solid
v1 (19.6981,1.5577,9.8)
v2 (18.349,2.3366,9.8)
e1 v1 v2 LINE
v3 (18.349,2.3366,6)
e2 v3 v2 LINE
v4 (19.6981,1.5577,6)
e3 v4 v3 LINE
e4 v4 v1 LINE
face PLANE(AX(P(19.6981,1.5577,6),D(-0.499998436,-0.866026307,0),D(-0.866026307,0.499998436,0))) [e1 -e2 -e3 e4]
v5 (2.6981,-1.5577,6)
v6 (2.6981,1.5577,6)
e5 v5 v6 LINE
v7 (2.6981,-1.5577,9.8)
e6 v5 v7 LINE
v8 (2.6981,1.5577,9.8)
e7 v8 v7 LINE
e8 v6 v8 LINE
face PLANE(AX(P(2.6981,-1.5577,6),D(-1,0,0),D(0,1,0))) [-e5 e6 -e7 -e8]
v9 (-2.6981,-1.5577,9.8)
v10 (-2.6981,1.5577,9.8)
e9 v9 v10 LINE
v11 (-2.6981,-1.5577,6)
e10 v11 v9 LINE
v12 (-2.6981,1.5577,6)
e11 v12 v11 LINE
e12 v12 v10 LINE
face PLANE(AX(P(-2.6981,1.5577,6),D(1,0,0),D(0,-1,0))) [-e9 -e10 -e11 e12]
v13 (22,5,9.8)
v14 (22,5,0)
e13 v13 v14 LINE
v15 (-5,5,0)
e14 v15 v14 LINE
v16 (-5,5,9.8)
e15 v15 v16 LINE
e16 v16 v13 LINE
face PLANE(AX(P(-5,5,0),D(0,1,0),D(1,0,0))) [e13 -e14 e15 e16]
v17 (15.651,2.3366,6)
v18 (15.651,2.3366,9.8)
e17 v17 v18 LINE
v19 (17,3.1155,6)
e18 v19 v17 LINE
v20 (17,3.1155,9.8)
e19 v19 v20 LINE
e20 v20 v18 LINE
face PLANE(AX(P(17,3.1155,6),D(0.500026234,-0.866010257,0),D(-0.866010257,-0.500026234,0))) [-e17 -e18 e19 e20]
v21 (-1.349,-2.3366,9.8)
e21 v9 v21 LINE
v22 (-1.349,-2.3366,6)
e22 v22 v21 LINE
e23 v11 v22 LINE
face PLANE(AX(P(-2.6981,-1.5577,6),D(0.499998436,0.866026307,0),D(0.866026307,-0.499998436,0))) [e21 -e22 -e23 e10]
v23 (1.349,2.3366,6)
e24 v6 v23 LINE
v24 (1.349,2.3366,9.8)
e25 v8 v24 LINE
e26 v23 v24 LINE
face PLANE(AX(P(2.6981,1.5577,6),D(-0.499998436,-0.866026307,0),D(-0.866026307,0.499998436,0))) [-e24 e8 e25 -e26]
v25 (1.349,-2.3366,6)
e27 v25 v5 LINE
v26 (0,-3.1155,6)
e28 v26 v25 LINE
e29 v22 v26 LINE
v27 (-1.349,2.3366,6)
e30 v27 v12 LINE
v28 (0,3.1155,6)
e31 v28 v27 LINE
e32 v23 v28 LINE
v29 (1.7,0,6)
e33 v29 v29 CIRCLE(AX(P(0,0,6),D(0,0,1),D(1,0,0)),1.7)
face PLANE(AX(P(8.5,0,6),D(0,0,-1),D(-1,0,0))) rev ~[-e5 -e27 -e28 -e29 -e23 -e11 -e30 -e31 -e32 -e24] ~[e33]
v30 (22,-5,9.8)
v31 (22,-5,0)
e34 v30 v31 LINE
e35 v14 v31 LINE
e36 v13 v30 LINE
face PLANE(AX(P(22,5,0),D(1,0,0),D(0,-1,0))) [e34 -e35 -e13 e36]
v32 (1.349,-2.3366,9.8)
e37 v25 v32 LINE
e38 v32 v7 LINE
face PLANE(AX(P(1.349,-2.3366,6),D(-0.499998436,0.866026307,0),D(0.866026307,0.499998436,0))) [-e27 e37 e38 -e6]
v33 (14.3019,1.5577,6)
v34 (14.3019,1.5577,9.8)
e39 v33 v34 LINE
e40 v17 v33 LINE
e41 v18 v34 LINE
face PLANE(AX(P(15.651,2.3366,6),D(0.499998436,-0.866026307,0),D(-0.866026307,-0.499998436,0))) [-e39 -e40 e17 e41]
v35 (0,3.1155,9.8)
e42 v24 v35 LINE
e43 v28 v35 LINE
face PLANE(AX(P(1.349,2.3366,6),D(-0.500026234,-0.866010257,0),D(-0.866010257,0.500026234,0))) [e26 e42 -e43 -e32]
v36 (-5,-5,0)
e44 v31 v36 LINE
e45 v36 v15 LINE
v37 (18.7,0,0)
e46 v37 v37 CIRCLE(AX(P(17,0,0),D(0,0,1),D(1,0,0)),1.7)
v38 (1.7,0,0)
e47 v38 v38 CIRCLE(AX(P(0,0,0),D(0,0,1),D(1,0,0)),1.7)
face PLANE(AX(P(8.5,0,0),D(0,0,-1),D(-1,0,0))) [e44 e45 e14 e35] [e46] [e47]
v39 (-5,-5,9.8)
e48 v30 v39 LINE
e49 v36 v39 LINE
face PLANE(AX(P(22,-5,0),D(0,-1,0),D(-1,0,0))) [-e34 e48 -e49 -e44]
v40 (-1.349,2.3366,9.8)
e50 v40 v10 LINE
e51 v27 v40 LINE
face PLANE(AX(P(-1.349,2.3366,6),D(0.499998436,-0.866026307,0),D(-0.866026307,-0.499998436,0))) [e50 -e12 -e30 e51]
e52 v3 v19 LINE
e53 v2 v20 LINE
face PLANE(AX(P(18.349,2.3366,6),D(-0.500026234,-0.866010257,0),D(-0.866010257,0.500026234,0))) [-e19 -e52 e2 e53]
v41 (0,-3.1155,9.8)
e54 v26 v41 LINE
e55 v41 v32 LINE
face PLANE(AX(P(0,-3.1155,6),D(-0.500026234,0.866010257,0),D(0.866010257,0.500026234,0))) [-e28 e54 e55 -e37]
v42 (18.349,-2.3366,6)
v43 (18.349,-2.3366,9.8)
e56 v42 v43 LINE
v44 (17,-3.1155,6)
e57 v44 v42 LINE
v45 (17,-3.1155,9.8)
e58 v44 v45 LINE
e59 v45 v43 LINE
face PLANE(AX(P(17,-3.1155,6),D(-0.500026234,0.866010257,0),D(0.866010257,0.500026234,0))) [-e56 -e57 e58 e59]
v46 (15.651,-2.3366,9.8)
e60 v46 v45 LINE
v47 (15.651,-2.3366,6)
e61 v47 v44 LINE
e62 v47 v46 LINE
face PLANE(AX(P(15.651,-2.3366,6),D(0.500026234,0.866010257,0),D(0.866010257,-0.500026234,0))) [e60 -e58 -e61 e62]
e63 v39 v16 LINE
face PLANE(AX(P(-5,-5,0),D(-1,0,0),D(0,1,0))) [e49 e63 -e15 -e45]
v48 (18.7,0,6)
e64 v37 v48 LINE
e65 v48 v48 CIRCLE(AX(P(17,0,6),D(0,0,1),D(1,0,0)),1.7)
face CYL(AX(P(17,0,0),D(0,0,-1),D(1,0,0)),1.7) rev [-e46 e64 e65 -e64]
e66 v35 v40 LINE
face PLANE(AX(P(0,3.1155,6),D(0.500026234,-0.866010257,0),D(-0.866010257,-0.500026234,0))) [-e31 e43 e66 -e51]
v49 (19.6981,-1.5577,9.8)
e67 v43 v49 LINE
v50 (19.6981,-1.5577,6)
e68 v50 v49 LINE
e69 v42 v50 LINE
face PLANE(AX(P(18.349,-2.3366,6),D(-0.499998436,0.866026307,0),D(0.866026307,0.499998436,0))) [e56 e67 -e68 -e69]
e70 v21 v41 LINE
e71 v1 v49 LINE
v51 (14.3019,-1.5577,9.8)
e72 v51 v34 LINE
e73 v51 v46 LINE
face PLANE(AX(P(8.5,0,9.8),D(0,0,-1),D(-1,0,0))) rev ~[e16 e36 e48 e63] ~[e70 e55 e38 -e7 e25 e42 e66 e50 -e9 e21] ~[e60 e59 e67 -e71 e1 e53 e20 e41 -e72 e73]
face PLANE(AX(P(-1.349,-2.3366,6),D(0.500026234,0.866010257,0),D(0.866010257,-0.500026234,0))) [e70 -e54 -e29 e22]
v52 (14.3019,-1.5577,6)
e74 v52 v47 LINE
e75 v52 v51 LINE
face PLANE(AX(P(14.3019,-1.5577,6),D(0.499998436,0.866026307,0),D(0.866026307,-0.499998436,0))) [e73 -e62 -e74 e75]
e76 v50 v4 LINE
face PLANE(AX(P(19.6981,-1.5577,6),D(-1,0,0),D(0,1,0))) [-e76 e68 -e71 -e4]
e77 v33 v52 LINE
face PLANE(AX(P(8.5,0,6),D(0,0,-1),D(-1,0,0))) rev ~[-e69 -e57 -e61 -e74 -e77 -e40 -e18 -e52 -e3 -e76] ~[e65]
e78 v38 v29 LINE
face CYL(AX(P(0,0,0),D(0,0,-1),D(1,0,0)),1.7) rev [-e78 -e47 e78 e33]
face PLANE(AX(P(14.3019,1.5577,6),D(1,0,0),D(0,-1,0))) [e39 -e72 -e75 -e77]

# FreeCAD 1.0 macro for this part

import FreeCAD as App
import Part
import Sketcher

V = App.Vector
Q = App.Units.Quantity


def add_polygon(sketch, points):
    """Adds a closed chain of lines whose ends are joined by coincident constraints."""
    first, n = sketch.GeometryCount, len(points)
    for a, b in zip(points, points[1:] + points[:1]):
        sketch.addGeometry(Part.LineSegment(App.Vector(*a, 0), App.Vector(*b, 0)), False)
    for i in range(n):
        sketch.addConstraint(Sketcher.Constraint("Coincident", first + i, 2, first + (i + 1) % n, 1))

doc = App.newDocument("Part")
body = doc.addObject("PartDesign::Body", "Body")

# Sketch on XY plane
sketch1 = body.newObject("Sketcher::SketchObject", "Sketch")
sketch1.AttachmentSupport = (doc.getObject("XY_Plane"), [""])
sketch1.MapMode = "FlatFace"
add_polygon(sketch1, [(22, 5), (-5, 5), (-5, -5), (22, -5)])  # lines 0-3
sketch1.addGeometry(Part.Circle(V(0, 0, 0), V(0, 0, 1), 1.7), False)  # 4
sketch1.addGeometry(Part.Circle(V(17, 0, 0), V(0, 0, 1), 1.7), False)  # 5
sketch1.addConstraint([
    Sketcher.Constraint("Horizontal", 0),
    Sketcher.Constraint("Vertical", 1),
    Sketcher.Constraint("Horizontal", 2),
    Sketcher.Constraint("Vertical", 3),
    Sketcher.Constraint("Coincident", 4, 3, -1, 1),
    Sketcher.Constraint("Equal", 4, 5),
    Sketcher.Constraint("PointOnObject", 5, 3, -1),
    Sketcher.Constraint("Diameter", 4, Q("3.4 mm")),
    Sketcher.Constraint("DistanceX", 0, 2, 0, 1, Q("27 mm")),
    Sketcher.Constraint("DistanceY", 1, 2, 1, 1, Q("10 mm")),
    Sketcher.Constraint("DistanceX", -1, 1, 5, 3, Q("17 mm")),
    Sketcher.Constraint("DistanceX", 0, 2, -1, 1, Q("5 mm")),
    Sketcher.Constraint("DistanceY", -1, 1, 0, 2, Q("5 mm")),
])
pad1 = body.newObject("PartDesign::Pad", "Pad")
pad1.Profile = sketch1
pad1.Length = 6

# Sketch on XY plane
sketch2 = body.newObject("Sketcher::SketchObject", "Sketch001")
sketch2.AttachmentSupport = (doc.getObject("XY_Plane"), [""])
sketch2.MapMode = "FlatFace"
sketch2.AttachmentOffset = App.Placement(V(0, 0, 6), App.Rotation())
add_polygon(sketch2, [(-5, 5), (-5, -5), (22, -5), (22, 5)])  # lines 0-3
add_polygon(sketch2, [(1.3, 2.3), (2.7, 1.6), (2.7, -1.6), (1.3, -2.3), (0, -3.1), (-1.3, -2.3), (-2.7, -1.6), (-2.7, 1.6), (-1.3, 2.3), (0, 3.1)])  # lines 4-13
add_polygon(sketch2, [(18.3, 2.3), (19.7, 1.6), (19.7, -1.6), (18.3, -2.3), (17, -3.1), (15.7, -2.3), (14.3, -1.6), (14.3, 1.6), (15.7, 2.3), (17, 3.1)])  # lines 14-23
sketch2.addConstraint([
    Sketcher.Constraint("Vertical", 0),
    Sketcher.Constraint("Horizontal", 1),
    Sketcher.Constraint("Vertical", 2),
    Sketcher.Constraint("Horizontal", 3),
    Sketcher.Constraint("Vertical", 5),
    Sketcher.Constraint("Vertical", 10),
    Sketcher.Constraint("Vertical", 15),
    Sketcher.Constraint("Vertical", 20),
    Sketcher.Constraint("Symmetric", 4, 2, 9, 2, -1, 1),
    Sketcher.Constraint("Symmetric", 6, 2, 11, 2, -1, 1),
    Sketcher.Constraint("Symmetric", 7, 2, 12, 2, -1, 1),
    Sketcher.Constraint("Symmetric", 8, 2, 13, 2, -1, 1),
    Sketcher.Constraint("Symmetric", 6, 2, 8, 2, -2),
    Sketcher.Constraint("Symmetric", 18, 2, 21, 2, -1),
    Sketcher.Constraint("Symmetric", 17, 2, 22, 2, -1),
    Sketcher.Constraint("Symmetric", 16, 2, 23, 2, -1),
    Sketcher.Constraint("PointOnObject", 7, 2, -2),
    Sketcher.Constraint("Parallel", 6, 7),
    Sketcher.Constraint("Parallel", 4, 8),
    Sketcher.Constraint("Parallel", 7, 11),
    Sketcher.Constraint("Parallel", 13, 14),
    Sketcher.Constraint("Parallel", 12, 16),
    Sketcher.Constraint("Parallel", 16, 17),
    Sketcher.Constraint("Parallel", 14, 18),
    Sketcher.Constraint("Parallel", 18, 19),
    Sketcher.Constraint("Parallel", 17, 21),
    Sketcher.Constraint("Horizontal", 10, 2, 14, 2),
    Sketcher.Constraint("Horizontal", 8, 2, 16, 2),
    Sketcher.Constraint("Horizontal", 7, 2, 17, 2),
    Sketcher.Constraint("Horizontal", 16, 2, 18, 2),
    Sketcher.Constraint("Horizontal", 15, 2, 19, 2),
    Sketcher.Constraint("Equal", 6, 7),
    Sketcher.Constraint("DistanceX", 1, 1, 1, 2, Q("27 mm")),
    Sketcher.Constraint("DistanceY", 0, 2, 0, 1, Q("10 mm")),
    Sketcher.Constraint("Angle", 4, Q("-30 deg")),
    Sketcher.Constraint("DistanceX", 0, 2, -1, 1, Q("5 mm")),
    Sketcher.Constraint("DistanceY", 0, 2, -1, 1, Q("5 mm")),
    Sketcher.Constraint("DistanceX", -1, 1, 17, 2, Q("17 mm")),
    Sketcher.Constraint("DistanceY", 5, 2, 5, 1, Q("3.1154 mm")),
    Sketcher.Constraint("DistanceX", -1, 1, 4, 2, Q("2.698 mm")),
])
pad2 = body.newObject("PartDesign::Pad", "Pad001")
pad2.Profile = sketch2
pad2.Length = 3.8

doc.recompute()
